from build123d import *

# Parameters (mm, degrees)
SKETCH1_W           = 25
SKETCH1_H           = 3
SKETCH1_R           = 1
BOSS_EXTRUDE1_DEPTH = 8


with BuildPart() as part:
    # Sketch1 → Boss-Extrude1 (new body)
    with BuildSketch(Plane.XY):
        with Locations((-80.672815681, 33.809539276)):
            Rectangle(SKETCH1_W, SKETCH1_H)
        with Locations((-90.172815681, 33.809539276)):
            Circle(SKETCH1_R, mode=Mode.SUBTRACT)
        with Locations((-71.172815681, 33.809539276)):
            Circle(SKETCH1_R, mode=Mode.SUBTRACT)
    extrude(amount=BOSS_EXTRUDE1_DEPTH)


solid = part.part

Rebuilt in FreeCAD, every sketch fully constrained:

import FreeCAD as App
import Part
import Sketcher

doc = App.newDocument("Part")
body = doc.addObject("PartDesign::Body", "Body")

sketch1 = body.newObject("Sketcher::SketchObject", "Sketch")
sketch1.AttachmentSupport = (doc.getObject("XY_Plane"), [""])
sketch1.MapMode = "FlatFace"
sketch1.addGeometry([
    Part.LineSegment(App.Vector(-93.2, 35.3, 0), App.Vector(-93.2, 32.3, 0)),
    Part.LineSegment(App.Vector(-93.2, 32.3, 0), App.Vector(-68.2, 32.3, 0)),
    Part.LineSegment(App.Vector(-68.2, 32.3, 0), App.Vector(-68.2, 35.3, 0)),
    Part.LineSegment(App.Vector(-68.2, 35.3, 0), App.Vector(-93.2, 35.3, 0)),
    Part.Circle(App.Vector(-90.2, 33.8, 0), App.Vector(0, 0, 1), 1),
    Part.Circle(App.Vector(-71.2, 33.8, 0), App.Vector(0, 0, 1), 1),
], False)
sketch1.addConstraint([
    Sketcher.Constraint("Coincident", 0, 2, 1, 1),
    Sketcher.Constraint("Coincident", 1, 2, 2, 1),
    Sketcher.Constraint("Coincident", 2, 2, 3, 1),
    Sketcher.Constraint("Coincident", 3, 2, 0, 1),
    Sketcher.Constraint("Vertical", 0),
    Sketcher.Constraint("Horizontal", 1),
    Sketcher.Constraint("Vertical", 2),
    Sketcher.Constraint("Horizontal", 3),
    Sketcher.Constraint("Equal", 4, 5),
    Sketcher.Constraint("Horizontal", 4, 3, 5, 3),
    Sketcher.Constraint("Diameter", 4, 2.0),
    Sketcher.Constraint("DistanceX", 1, 1, 1, 2, 25.0),
    Sketcher.Constraint("DistanceY", 0, 2, 0, 1, 3.0),
    Sketcher.Constraint("DistanceX", 4, 3, 5, 3, 19.0),
    Sketcher.Constraint("DistanceX", 0, 2, 4, 3, 3.0),
    Sketcher.Constraint("DistanceY", 0, 2, 4, 3, 1.5),
    Sketcher.Constraint("DistanceY", -1, 1, 4, 3, 33.809539),
    Sketcher.Constraint("DistanceX", 4, 3, -1, 1, 90.172816),
])
pad1 = body.newObject("PartDesign::Pad", "Pad")
pad1.Profile = sketch1
pad1.Length = 8

doc.recompute()
